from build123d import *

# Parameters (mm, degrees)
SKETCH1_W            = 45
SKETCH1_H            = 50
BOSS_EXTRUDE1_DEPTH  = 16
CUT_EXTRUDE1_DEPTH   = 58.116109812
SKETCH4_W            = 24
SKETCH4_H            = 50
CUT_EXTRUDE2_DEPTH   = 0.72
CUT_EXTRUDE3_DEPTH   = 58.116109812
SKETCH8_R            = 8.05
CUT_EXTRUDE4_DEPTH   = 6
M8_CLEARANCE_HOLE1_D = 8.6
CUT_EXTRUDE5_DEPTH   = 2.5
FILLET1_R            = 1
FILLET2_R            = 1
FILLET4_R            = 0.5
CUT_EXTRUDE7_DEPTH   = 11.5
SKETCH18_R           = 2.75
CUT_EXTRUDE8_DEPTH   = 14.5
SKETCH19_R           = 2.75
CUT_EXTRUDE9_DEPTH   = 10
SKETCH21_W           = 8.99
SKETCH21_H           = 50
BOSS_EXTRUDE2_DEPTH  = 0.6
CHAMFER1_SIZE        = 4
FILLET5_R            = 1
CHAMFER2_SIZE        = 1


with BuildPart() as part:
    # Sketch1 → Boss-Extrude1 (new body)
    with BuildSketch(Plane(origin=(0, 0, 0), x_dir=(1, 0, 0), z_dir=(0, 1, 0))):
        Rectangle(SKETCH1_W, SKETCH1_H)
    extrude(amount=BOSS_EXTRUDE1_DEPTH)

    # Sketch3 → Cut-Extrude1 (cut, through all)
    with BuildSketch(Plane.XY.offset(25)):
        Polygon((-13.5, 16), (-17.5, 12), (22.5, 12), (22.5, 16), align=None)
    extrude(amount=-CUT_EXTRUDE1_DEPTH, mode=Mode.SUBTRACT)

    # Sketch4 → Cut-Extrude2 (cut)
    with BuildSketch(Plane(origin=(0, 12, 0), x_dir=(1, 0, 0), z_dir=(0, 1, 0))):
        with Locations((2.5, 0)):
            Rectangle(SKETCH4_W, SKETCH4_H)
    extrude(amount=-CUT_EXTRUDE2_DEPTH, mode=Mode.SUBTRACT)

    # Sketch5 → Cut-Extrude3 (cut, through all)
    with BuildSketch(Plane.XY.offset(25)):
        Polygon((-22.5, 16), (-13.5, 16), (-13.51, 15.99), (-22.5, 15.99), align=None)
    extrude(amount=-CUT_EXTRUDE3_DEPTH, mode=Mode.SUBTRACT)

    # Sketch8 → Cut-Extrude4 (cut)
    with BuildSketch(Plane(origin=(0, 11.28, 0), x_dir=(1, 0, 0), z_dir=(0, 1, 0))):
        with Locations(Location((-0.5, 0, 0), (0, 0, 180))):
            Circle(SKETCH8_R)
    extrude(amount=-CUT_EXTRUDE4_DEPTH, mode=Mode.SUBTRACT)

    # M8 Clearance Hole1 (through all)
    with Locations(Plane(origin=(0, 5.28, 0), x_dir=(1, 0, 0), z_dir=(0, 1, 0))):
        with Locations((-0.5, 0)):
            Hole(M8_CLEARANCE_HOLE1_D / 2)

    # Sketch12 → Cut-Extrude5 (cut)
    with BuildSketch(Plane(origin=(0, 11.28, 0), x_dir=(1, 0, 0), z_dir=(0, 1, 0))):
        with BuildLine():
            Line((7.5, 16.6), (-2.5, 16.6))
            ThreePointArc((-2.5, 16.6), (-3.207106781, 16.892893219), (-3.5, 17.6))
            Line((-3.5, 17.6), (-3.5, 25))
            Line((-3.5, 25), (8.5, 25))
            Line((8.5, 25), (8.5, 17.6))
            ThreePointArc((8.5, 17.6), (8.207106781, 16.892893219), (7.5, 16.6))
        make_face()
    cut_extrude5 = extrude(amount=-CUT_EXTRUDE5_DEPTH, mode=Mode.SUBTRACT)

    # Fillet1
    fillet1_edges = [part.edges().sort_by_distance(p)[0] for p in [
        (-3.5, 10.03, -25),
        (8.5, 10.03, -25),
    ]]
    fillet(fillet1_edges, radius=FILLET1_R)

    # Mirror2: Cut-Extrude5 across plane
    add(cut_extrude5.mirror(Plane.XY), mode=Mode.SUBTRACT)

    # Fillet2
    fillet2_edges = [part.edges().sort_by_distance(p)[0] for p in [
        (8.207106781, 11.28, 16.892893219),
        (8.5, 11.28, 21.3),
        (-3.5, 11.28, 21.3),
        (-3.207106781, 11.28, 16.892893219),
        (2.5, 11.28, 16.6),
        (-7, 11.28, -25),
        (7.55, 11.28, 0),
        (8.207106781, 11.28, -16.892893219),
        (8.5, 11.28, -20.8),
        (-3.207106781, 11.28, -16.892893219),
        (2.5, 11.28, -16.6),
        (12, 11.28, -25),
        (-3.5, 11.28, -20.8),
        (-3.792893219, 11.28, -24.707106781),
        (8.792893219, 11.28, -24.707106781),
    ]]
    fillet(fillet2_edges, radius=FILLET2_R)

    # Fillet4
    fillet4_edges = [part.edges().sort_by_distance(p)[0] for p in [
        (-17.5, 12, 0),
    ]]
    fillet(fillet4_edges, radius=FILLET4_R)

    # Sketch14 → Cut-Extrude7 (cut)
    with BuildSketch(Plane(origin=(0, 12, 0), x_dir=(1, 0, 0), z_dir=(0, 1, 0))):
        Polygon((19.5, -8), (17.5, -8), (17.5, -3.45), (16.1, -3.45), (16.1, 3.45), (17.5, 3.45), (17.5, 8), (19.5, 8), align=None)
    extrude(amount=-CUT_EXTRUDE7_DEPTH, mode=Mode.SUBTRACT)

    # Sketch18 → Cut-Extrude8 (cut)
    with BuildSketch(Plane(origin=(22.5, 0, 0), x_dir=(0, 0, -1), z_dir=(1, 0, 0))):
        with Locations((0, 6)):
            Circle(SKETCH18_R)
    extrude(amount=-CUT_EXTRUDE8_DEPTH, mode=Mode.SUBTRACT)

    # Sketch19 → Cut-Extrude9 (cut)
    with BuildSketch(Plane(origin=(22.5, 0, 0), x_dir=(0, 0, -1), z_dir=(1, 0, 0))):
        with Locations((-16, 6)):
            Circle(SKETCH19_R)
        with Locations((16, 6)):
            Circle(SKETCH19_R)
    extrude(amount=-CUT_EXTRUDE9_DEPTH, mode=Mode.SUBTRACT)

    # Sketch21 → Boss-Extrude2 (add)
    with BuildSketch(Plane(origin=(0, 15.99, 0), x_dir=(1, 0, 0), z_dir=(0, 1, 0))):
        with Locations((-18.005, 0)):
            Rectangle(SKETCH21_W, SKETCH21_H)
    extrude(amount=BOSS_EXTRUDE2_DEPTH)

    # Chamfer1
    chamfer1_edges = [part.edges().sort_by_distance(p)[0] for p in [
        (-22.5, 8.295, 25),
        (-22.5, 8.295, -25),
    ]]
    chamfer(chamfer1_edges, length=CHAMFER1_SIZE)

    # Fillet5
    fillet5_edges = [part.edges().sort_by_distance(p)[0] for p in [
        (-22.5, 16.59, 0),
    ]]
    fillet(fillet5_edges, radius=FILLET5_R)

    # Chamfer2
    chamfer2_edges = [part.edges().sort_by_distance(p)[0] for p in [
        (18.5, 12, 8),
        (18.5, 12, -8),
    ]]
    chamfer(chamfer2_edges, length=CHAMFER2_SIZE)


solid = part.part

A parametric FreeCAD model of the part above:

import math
import FreeCAD as App
import Part
import Sketcher
Q = App.Units.Quantity


def edges_at(feature, points):
    """Names of the edges that pass closest to the given points."""
    edges = feature.Shape.Edges
    near = lambda p: min(range(len(edges)), key=lambda i: edges[i].distToShape(Part.Vertex(*p))[0])
    return sorted({f"Edge{near(p) + 1}" for p in points})


def add_polygon(sketch, points):
    """Adds a closed chain of lines whose ends are joined by coincident constraints."""
    first, n = sketch.GeometryCount, len(points)
    for a, b in zip(points, points[1:] + points[:1]):
        sketch.addGeometry(Part.LineSegment(App.Vector(*a, 0), App.Vector(*b, 0)), False)
    for i in range(n):
        sketch.addConstraint(Sketcher.Constraint("Coincident", first + i, 2, first + (i + 1) % n, 1))

doc = App.newDocument("Part")
body = doc.addObject("PartDesign::Body", "Body")

# Sketch on XZ plane
sketch1 = doc.addObject("Sketcher::SketchObject", "Sketch")
body.addObject(sketch1)
sketch1.AttachmentSupport = (doc.XZ_Plane, [""])
sketch1.MapMode = "FlatFace"
add_polygon(sketch1, [(-22, -25), (-22, 25), (22, 25), (22, -25)])  # lines 0-3
sketch1.addConstraint([
    Sketcher.Constraint("Vertical", 0),
    Sketcher.Constraint("Horizontal", 1),
    Sketcher.Constraint("Vertical", 2),
    Sketcher.Constraint("Horizontal", 3),
    Sketcher.Constraint("Symmetric", 0, 2, 2, 2, -1, 1),
    Sketcher.Constraint("DistanceX", 1, 1, 1, 2, 45.0),
    Sketcher.Constraint("DistanceY", 0, 1, 0, 2, 50.0),
])
pad1 = doc.addObject("PartDesign::Pad", "Pad")
body.addObject(pad1)
pad1.Profile = sketch1
pad1.Length = 16
pad1.Reversed = True

# Sketch on XY plane
sketch2 = doc.addObject("Sketcher::SketchObject", "Sketch001")
body.addObject(sketch2)
sketch2.AttachmentSupport = (doc.XY_Plane, [""])
sketch2.MapMode = "FlatFace"
sketch2.AttachmentOffset = App.Placement(App.Vector(0, 0, 25), App.Rotation())
add_polygon(sketch2, [(-13.5, 16), (-17.5, 12), (22.5, 12), (22.5, 16)])  # lines 0-3
sketch2.addConstraint([
    Sketcher.Constraint("Horizontal", 1),
    Sketcher.Constraint("Vertical", 2),
    Sketcher.Constraint("Horizontal", 3),
    Sketcher.Constraint("DistanceX", 1, 1, 1, 2, 40.0),
    Sketcher.Constraint("DistanceX", 3, 2, 3, 1, 36.0),
    Sketcher.Constraint("DistanceY", 2, 1, 2, 2, 4.0),
    Sketcher.Constraint("DistanceY", -1, 1, 0, 2, 12.0),
    Sketcher.Constraint("DistanceX", 0, 2, -1, 1, 17.5),
])
pocket1 = doc.addObject("PartDesign::Pocket", "Pocket")
body.addObject(pocket1)
pocket1.Profile = sketch2
pocket1.Type = "ThroughAll"

# Sketch on XZ plane
sketch3 = doc.addObject("Sketcher::SketchObject", "Sketch002")
body.addObject(sketch3)
sketch3.AttachmentSupport = (doc.XZ_Plane, [""])
sketch3.MapMode = "FlatFace"
sketch3.AttachmentOffset = App.Placement(App.Vector(0, 0, -12), App.Rotation())
add_polygon(sketch3, [(-10, -25), (-10, 25), (14, 25), (14, -25)])  # lines 0-3
sketch3.addConstraint([
    Sketcher.Constraint("Vertical", 0),
    Sketcher.Constraint("Horizontal", 1),
    Sketcher.Constraint("Vertical", 2),
    Sketcher.Constraint("Horizontal", 3),
    Sketcher.Constraint("DistanceX", 1, 1, 1, 2, 24.0),
    Sketcher.Constraint("DistanceY", 0, 1, 0, 2, 50.0),
    Sketcher.Constraint("DistanceY", -1, 1, 0, 2, 25.0),
    Sketcher.Constraint("DistanceX", 0, 2, -1, 1, 9.5),
])
pocket2 = doc.addObject("PartDesign::Pocket", "Pocket001")
body.addObject(pocket2)
pocket2.Profile = sketch3
pocket2.Length = 0.72
pocket2.Reversed = True

# Sketch on XY plane
sketch4 = doc.addObject("Sketcher::SketchObject", "Sketch003")
body.addObject(sketch4)
sketch4.AttachmentSupport = (doc.XY_Plane, [""])
sketch4.MapMode = "FlatFace"
sketch4.AttachmentOffset = App.Placement(App.Vector(0, 0, 25), App.Rotation())
add_polygon(sketch4, [(-13.5, 16), (-22.5, 16), (-22.5, 15.99), (-13.51, 15.99)])  # lines 0-3
sketch4.addConstraint([
    Sketcher.Constraint("Horizontal", 0),
    Sketcher.Constraint("Vertical", 1),
    Sketcher.Constraint("Horizontal", 2),
    Sketcher.Constraint("DistanceX", 0, 2, 0, 1, 9.0),
    Sketcher.Constraint("Angle", 3, Q("45 deg")),
    Sketcher.Constraint("DistanceY", -1, 1, 0, 2, 16.0),
    Sketcher.Constraint("DistanceX", 2, 1, 2, 2, 8.99),
    Sketcher.Constraint("DistanceX", 0, 2, -1, 1, 22.5),
])
pocket3 = doc.addObject("PartDesign::Pocket", "Pocket002")
body.addObject(pocket3)
pocket3.Profile = sketch4
pocket3.Type = "ThroughAll"

# Sketch on XZ plane
sketch5 = doc.addObject("Sketcher::SketchObject", "Sketch004")
body.addObject(sketch5)
sketch5.AttachmentSupport = (doc.XZ_Plane, [""])
sketch5.MapMode = "FlatFace"
sketch5.AttachmentOffset = App.Placement(App.Vector(0, 0, -11.28), App.Rotation())
sketch5.addGeometry(Part.Circle(App.Vector(0, 0, 0), App.Vector(0, 0, 1), 8), False)
sketch5.addConstraint([
    Sketcher.Constraint("PointOnObject", 0, 3, -1),
    Sketcher.Constraint("Diameter", 0, 16.1),
    Sketcher.Constraint("DistanceX", 0, 3, -1, 1, 0.5),
])
pocket4 = doc.addObject("PartDesign::Pocket", "Pocket003")
body.addObject(pocket4)
pocket4.Profile = sketch5
pocket4.Length = 6
pocket4.Reversed = True

# Sketch on XZ plane
sketch6 = doc.addObject("Sketcher::SketchObject", "Sketch005")
body.addObject(sketch6)
sketch6.AttachmentSupport = (doc.XZ_Plane, [""])
sketch6.MapMode = "FlatFace"
sketch6.AttachmentOffset = App.Placement(App.Vector(0, 0, -5.28), App.Rotation())
sketch6.addGeometry(Part.Circle(App.Vector(-0.5, 0, 0), App.Vector(0, 0, 1), 4.3), False)
sketch6.addConstraint([
    Sketcher.Constraint("PointOnObject", 0, 3, -1),
    Sketcher.Constraint("Diameter", 0, 8.6),
    Sketcher.Constraint("DistanceX", 0, 3, -1, 1, 0.5),
])
doc.recompute()
hole = doc.addObject("PartDesign::Hole", "Hole")
body.addObject(hole)
hole.Profile = sketch6
hole.ThreadType = "None"
hole.Diameter = 8.6
hole.DepthType = "ThroughAll"
hole.Reversed = True

# Sketch on XZ plane
sketch7 = doc.addObject("Sketcher::SketchObject", "Sketch006")
body.addObject(sketch7)
sketch7.AttachmentSupport = (doc.XZ_Plane, [""])
sketch7.MapMode = "FlatFace"
sketch7.AttachmentOffset = App.Placement(App.Vector(0, 0, -11.28), App.Rotation())
sketch7.addGeometry([
    Part.LineSegment(App.Vector(-2.5, -16.6, 0), App.Vector(7.5, -16.6, 0)),  # 0
    Part.ArcOfCircle(Part.Circle(App.Vector(7.5, -17.6, 0), App.Vector(0, 0, 1), 1), math.radians(0), math.radians(90)),  # 1
    Part.LineSegment(App.Vector(8.5, -17.6, 0), App.Vector(8.5, -25, 0)),  # 2
    Part.LineSegment(App.Vector(8.5, -25, 0), App.Vector(-3.5, -25, 0)),  # 3
    Part.LineSegment(App.Vector(-3.5, -25, 0), App.Vector(-3.5, -17.6, 0)),  # 4
    Part.ArcOfCircle(Part.Circle(App.Vector(-2.5, -17.6, 0), App.Vector(0, 0, 1), 1), math.radians(90), math.radians(180)),  # 5
], False)
sketch7.addConstraint([
    Sketcher.Constraint("Tangent", 0, 2, 1, 2),
    Sketcher.Constraint("Tangent", 1, 1, 2, 1),
    Sketcher.Constraint("Coincident", 2, 2, 3, 1),
    Sketcher.Constraint("Coincident", 3, 2, 4, 1),
    Sketcher.Constraint("Tangent", 4, 2, 5, 2),
    Sketcher.Constraint("Tangent", 5, 1, 0, 1),
    Sketcher.Constraint("Horizontal", 0),
    Sketcher.Constraint("Vertical", 2),
    Sketcher.Constraint("Horizontal", 3),
    Sketcher.Constraint("Vertical", 4),
    Sketcher.Constraint("Equal", 1, 5),
    Sketcher.Constraint("Radius", 1, 1.0),
    Sketcher.Constraint("DistanceX", 0, 1, 0, 2, 10.0),
    Sketcher.Constraint("DistanceY", 2, 2, 2, 1, 7.4),
    Sketcher.Constraint("DistanceY", 2, 2, -1, 1, 25.0),
    Sketcher.Constraint("DistanceX", -1, 1, 1, 3, 7.5),
])
pocket5 = doc.addObject("PartDesign::Pocket", "Pocket004")
body.addObject(pocket5)
pocket5.Profile = sketch7
pocket5.Length = 2.5
pocket5.Reversed = True
doc.recompute()

fillet = doc.addObject("PartDesign::Fillet", "Fillet")
body.addObject(fillet)
fillet.Base = (pocket5, edges_at(pocket5, [(-3.5, 10.03, -25), (8.5, 10.03, -25)]))
fillet.Radius = 1
doc.recompute()

mirrored = doc.addObject("PartDesign::Mirrored", "Mirrored")
body.addObject(mirrored)
mirrored.Originals = [pocket5]
mirrored.MirrorPlane = (doc.XY_Plane, [""])
body.Tip = mirrored
doc.recompute()

fillet2 = doc.addObject("PartDesign::Fillet", "Fillet001")
body.addObject(fillet2)
fillet2.Base = (mirrored, edges_at(mirrored, [
    (8.207, 11.28, 16.893),
    (8.5, 11.28, 21.3),
    (-3.5, 11.28, 21.3),
    (-3.207, 11.28, 16.893),
    (2.5, 11.28, 16.6),
    (-7, 11.28, -25),
    (7.55, 11.28, 0),
    (8.207, 11.28, -16.893),
    (8.5, 11.28, -20.8),
    (-3.207, 11.28, -16.893),
    (2.5, 11.28, -16.6),
    (12, 11.28, -25),
    (-3.5, 11.28, -20.8),
    (-3.793, 11.28, -24.707),
    (8.793, 11.28, -24.707),
]))
fillet2.Radius = 1
doc.recompute()

fillet3 = doc.addObject("PartDesign::Fillet", "Fillet002")
body.addObject(fillet3)
fillet3.Base = (fillet2, edges_at(fillet2, [(-17.5, 12, 0)]))
fillet3.Radius = 0.5

# Sketch on XZ plane
sketch8 = doc.addObject("Sketcher::SketchObject", "Sketch007")
body.addObject(sketch8)
sketch8.AttachmentSupport = (doc.XZ_Plane, [""])
sketch8.MapMode = "FlatFace"
sketch8.AttachmentOffset = App.Placement(App.Vector(0, 0, -12), App.Rotation())
add_polygon(sketch8, [(17.5, 8), (19.5, 8), (19.5, -8), (17.5, -8), (17.5, -3.5), (16.1, -3.5), (16.1, 3.5), (17.5, 3.5)])  # lines 0-7
sketch8.addConstraint([
    Sketcher.Constraint("Horizontal", 0),
    Sketcher.Constraint("Vertical", 1),
    Sketcher.Constraint("Horizontal", 2),
    Sketcher.Constraint("Vertical", 3),
    Sketcher.Constraint("Horizontal", 4),
    Sketcher.Constraint("Vertical", 5),
    Sketcher.Constraint("Horizontal", 6),
    Sketcher.Constraint("Vertical", 7),
    Sketcher.Constraint("Symmetric", 3, 2, 6, 2, -1),
    Sketcher.Constraint("Equal", 3, 7),
    Sketcher.Constraint("DistanceX", 0, 1, 0, 2, 2.0),
    Sketcher.Constraint("DistanceY", 1, 2, 1, 1, 16.0),
    Sketcher.Constraint("DistanceX", 4, 2, 4, 1, 1.4),
    Sketcher.Constraint("DistanceY", 5, 1, 5, 2, 6.9),
    Sketcher.Constraint("DistanceX", -1, 1, 0, 2, 19.5),
])
pocket6 = doc.addObject("PartDesign::Pocket", "Pocket005")
body.addObject(pocket6)
pocket6.Profile = sketch8
pocket6.Length = 11.5
pocket6.Reversed = True

# Sketch on YZ plane
sketch9 = doc.addObject("Sketcher::SketchObject", "Sketch008")
body.addObject(sketch9)
sketch9.AttachmentSupport = (doc.YZ_Plane, [""])
sketch9.MapMode = "FlatFace"
sketch9.AttachmentOffset = App.Placement(App.Vector(0, 0, 22.5), App.Rotation())
sketch9.addGeometry(Part.Circle(App.Vector(6, 0, 0), App.Vector(0, 0, 1), 2.8), False)
sketch9.addConstraint([
    Sketcher.Constraint("PointOnObject", 0, 3, -1),
    Sketcher.Constraint("Diameter", 0, 5.5),
    Sketcher.Constraint("DistanceX", -1, 1, 0, 3, 6.0),
])
pocket7 = doc.addObject("PartDesign::Pocket", "Pocket006")
body.addObject(pocket7)
pocket7.Profile = sketch9
pocket7.Length = 14.5

# Sketch on YZ plane
sketch10 = doc.addObject("Sketcher::SketchObject", "Sketch009")
body.addObject(sketch10)
sketch10.AttachmentSupport = (doc.YZ_Plane, [""])
sketch10.MapMode = "FlatFace"
sketch10.AttachmentOffset = App.Placement(App.Vector(0, 0, 22.5), App.Rotation())
sketch10.addGeometry([
    Part.Circle(App.Vector(6, 16, 0), App.Vector(0, 0, 1), 2.8),
    Part.Circle(App.Vector(6, -16, 0), App.Vector(0, 0, 1), 2.8),
], False)
sketch10.addConstraint([
    Sketcher.Constraint("Equal", 0, 1),
    Sketcher.Constraint("Symmetric", 0, 3, 1, 3, -1),
    Sketcher.Constraint("Diameter", 0, 5.5),
    Sketcher.Constraint("DistanceX", -1, 1, 0, 3, 6.0),
    Sketcher.Constraint("DistanceY", -1, 1, 0, 3, 16.0),
])
pocket8 = doc.addObject("PartDesign::Pocket", "Pocket007")
body.addObject(pocket8)
pocket8.Profile = sketch10
pocket8.Length = 10

# Sketch on XZ plane
sketch11 = doc.addObject("Sketcher::SketchObject", "Sketch010")
body.addObject(sketch11)
sketch11.AttachmentSupport = (doc.XZ_Plane, [""])
sketch11.MapMode = "FlatFace"
sketch11.AttachmentOffset = App.Placement(App.Vector(0, 0, -15.99), App.Rotation())
add_polygon(sketch11, [(-22, -25), (-22, 25), (-14, 25), (-14, -25)])  # lines 0-3
sketch11.addConstraint([
    Sketcher.Constraint("Vertical", 0),
    Sketcher.Constraint("Horizontal", 1),
    Sketcher.Constraint("Vertical", 2),
    Sketcher.Constraint("Horizontal", 3),
    Sketcher.Constraint("DistanceY", 0, 1, 0, 2, 50.0),
    Sketcher.Constraint("DistanceY", -1, 1, 0, 2, 25.0),
    Sketcher.Constraint("DistanceX", 1, 1, 1, 2, 8.99),
    Sketcher.Constraint("DistanceX", 0, 2, -1, 1, 22.5),
])
pad2 = doc.addObject("PartDesign::Pad", "Pad001")
body.addObject(pad2)
pad2.Profile = sketch11
pad2.Length = 0.6
pad2.Reversed = True
doc.recompute()

chamfer = doc.addObject("PartDesign::Chamfer", "Chamfer")
body.addObject(chamfer)
chamfer.Base = (pad2, edges_at(pad2, [(-22.5, 8.295, 25), (-22.5, 8.295, -25)]))
chamfer.Size = 4
doc.recompute()

fillet4 = doc.addObject("PartDesign::Fillet", "Fillet003")
body.addObject(fillet4)
fillet4.Base = (chamfer, edges_at(chamfer, [(-22.5, 16.59, 0)]))
fillet4.Radius = 1
doc.recompute()

chamfer2 = doc.addObject("PartDesign::Chamfer", "Chamfer001")
body.addObject(chamfer2)
chamfer2.Base = (fillet4, edges_at(fillet4, [(18.5, 12, 8), (18.5, 12, -8)]))
chamfer2.Size = 1

doc.recompute()
